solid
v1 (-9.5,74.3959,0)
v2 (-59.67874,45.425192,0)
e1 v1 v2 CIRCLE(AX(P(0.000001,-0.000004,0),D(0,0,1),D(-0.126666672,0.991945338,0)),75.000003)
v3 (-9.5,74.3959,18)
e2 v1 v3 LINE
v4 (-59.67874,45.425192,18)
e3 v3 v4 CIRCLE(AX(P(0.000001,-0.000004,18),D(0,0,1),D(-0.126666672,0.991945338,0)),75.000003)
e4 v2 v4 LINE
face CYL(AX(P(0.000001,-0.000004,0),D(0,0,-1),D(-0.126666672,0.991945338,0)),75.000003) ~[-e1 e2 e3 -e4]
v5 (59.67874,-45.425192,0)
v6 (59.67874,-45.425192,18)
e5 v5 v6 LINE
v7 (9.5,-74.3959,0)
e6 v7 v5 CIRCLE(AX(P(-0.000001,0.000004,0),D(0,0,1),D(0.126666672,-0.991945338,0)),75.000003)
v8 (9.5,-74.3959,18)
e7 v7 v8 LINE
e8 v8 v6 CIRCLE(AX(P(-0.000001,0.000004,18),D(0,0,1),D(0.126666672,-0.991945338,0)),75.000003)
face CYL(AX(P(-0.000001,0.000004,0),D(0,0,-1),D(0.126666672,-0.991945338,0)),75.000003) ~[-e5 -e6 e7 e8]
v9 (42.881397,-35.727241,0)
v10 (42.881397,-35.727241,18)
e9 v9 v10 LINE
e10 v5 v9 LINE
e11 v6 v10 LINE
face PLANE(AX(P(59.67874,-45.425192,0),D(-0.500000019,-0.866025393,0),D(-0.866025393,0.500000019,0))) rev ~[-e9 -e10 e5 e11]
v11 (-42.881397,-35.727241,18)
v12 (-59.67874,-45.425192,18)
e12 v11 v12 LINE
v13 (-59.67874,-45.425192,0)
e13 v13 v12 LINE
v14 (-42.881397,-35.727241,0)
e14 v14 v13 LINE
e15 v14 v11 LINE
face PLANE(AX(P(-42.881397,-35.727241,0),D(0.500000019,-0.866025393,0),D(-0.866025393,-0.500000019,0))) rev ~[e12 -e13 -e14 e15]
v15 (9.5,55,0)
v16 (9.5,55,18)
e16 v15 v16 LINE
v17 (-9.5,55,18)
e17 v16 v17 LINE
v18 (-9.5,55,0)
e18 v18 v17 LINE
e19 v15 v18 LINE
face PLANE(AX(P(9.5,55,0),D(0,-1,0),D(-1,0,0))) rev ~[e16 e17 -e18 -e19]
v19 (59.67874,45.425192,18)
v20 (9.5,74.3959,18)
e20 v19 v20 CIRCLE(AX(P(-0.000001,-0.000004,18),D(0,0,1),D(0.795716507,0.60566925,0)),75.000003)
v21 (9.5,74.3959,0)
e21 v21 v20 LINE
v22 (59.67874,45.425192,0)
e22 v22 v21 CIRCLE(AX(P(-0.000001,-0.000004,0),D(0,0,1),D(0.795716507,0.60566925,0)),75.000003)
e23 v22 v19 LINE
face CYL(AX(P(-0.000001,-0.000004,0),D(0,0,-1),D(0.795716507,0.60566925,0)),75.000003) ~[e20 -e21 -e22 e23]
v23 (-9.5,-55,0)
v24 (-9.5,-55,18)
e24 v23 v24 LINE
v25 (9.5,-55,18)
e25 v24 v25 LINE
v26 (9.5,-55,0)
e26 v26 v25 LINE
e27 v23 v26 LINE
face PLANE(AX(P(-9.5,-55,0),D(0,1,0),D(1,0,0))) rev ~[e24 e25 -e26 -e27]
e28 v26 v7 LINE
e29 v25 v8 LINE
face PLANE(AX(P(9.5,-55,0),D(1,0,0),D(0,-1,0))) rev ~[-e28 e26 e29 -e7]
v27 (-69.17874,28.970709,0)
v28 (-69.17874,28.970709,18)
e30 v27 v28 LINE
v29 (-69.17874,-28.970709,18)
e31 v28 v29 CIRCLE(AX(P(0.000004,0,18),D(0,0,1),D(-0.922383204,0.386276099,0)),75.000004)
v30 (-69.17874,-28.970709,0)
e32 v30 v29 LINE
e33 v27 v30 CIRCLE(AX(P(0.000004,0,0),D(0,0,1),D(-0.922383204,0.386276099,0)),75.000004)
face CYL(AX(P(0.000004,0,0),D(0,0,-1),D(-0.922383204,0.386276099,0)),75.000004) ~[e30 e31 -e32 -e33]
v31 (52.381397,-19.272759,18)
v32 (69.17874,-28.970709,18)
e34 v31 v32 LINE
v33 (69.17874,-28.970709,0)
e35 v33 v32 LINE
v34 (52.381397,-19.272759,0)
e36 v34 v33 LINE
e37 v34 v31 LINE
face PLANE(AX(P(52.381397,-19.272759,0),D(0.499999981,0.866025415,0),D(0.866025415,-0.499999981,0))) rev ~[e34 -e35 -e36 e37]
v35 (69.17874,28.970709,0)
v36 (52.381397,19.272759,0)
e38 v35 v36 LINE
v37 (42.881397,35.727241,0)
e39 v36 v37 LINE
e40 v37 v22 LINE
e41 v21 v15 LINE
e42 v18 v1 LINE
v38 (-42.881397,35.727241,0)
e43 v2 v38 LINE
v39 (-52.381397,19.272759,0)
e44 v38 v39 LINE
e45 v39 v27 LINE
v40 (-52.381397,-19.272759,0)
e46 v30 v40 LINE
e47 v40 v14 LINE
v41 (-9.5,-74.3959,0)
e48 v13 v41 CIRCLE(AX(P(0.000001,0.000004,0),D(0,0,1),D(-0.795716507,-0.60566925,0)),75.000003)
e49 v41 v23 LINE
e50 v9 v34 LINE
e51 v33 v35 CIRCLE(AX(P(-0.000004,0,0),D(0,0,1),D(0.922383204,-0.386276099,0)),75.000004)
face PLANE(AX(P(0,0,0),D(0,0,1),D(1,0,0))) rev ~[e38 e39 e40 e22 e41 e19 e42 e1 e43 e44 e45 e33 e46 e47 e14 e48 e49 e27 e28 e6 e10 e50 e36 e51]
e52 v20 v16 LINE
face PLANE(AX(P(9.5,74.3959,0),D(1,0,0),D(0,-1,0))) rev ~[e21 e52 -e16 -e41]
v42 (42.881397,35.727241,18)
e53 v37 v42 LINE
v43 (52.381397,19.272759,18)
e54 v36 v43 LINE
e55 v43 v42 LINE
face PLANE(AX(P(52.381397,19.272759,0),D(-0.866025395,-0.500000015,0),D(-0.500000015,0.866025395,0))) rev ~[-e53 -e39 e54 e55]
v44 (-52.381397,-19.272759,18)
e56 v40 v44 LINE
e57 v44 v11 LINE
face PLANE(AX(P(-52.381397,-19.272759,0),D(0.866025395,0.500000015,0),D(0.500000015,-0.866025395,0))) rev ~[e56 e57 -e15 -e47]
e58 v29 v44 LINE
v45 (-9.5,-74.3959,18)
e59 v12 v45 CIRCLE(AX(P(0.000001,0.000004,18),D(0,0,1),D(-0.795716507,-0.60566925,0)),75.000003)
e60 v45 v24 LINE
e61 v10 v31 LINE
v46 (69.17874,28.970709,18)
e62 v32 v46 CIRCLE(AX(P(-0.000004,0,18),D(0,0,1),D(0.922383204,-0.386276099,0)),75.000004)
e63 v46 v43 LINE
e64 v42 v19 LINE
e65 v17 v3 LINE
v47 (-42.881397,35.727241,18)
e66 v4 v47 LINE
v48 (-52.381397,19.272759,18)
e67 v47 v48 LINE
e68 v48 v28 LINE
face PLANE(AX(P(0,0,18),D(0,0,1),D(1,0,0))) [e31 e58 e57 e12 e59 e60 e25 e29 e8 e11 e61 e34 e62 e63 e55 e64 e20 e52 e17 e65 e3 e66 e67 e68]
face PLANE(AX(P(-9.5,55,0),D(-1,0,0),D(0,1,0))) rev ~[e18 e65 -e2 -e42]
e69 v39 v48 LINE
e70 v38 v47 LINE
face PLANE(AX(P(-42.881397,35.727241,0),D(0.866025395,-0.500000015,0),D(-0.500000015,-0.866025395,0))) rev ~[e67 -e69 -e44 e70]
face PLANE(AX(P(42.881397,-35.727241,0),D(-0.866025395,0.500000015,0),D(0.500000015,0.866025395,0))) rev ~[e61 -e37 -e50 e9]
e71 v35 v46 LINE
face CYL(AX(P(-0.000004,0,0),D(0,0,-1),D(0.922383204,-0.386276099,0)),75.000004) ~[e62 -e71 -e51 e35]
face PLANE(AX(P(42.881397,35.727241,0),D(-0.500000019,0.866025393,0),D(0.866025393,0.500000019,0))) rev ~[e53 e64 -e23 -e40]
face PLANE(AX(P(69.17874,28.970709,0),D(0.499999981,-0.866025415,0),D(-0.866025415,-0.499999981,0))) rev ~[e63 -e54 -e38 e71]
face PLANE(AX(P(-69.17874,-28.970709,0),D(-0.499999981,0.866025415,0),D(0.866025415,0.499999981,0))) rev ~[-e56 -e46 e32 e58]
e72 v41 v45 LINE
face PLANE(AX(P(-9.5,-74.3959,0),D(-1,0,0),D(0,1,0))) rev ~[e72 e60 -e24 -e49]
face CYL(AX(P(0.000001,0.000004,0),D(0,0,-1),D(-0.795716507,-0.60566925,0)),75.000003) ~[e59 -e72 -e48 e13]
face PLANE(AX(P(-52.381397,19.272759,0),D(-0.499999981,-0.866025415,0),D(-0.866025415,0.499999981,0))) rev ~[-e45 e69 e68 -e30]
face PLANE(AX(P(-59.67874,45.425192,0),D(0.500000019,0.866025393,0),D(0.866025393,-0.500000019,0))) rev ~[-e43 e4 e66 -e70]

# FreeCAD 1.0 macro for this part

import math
import FreeCAD as App
import Part
import Sketcher

V = App.Vector
Q = App.Units.Quantity

doc = App.newDocument("Part")
body = doc.addObject("PartDesign::Body", "Body")

# Sketch on XY plane
sketch1 = body.newObject("Sketcher::SketchObject", "Sketch")
sketch1.AttachmentSupport = (doc.getObject("XY_Plane"), [""])
sketch1.MapMode = "FlatFace"
sketch1.addGeometry(Part.LineSegment(V(-10, 55, 0), V(-10, 74, 0)), False)
sketch1.addGeometry(Part.ArcOfCircle(Part.Circle(V(0, 0, 0), V(0, 0, 1), 75), math.radians(97), math.radians(143)), False)
sketch1.addGeometry(Part.LineSegment(V(-60, 45, 0), V(-43, 36, 0)), False)
sketch1.addGeometry(Part.LineSegment(V(-43, 36, 0), V(-52, 19, 0)), False)
sketch1.addGeometry(Part.LineSegment(V(-52, 19, 0), V(-69, 29, 0)), False)
sketch1.addGeometry(Part.ArcOfCircle(Part.Circle(V(0, 0, 0), V(0, 0, 1), 75), math.radians(157), math.radians(203)), False)
sketch1.addGeometry(Part.LineSegment(V(-69, -29, 0), V(-52, -19, 0)), False)
sketch1.addGeometry(Part.LineSegment(V(-52, -19, 0), V(-43, -36, 0)), False)
sketch1.addGeometry(Part.LineSegment(V(-43, -36, 0), V(-60, -45, 0)), False)
sketch1.addGeometry(Part.ArcOfCircle(Part.Circle(V(0, 0, 0), V(0, 0, 1), 75), math.radians(-143), math.radians(-97)), False)
sketch1.addGeometry(Part.LineSegment(V(-10, -74, 0), V(-10, -55, 0)), False)
sketch1.addGeometry(Part.LineSegment(V(-10, -55, 0), V(10, -55, 0)), False)
sketch1.addGeometry(Part.LineSegment(V(10, -55, 0), V(10, -74, 0)), False)
sketch1.addGeometry(Part.ArcOfCircle(Part.Circle(V(0, 0, 0), V(0, 0, 1), 75), math.radians(-83), math.radians(-37)), False)
sketch1.addGeometry(Part.LineSegment(V(60, -45, 0), V(43, -36, 0)), False)
sketch1.addGeometry(Part.LineSegment(V(43, -36, 0), V(52, -19, 0)), False)
sketch1.addGeometry(Part.LineSegment(V(52, -19, 0), V(69, -29, 0)), False)
sketch1.addGeometry(Part.ArcOfCircle(Part.Circle(V(0, 0, 0), V(0, 0, 1), 75), math.radians(-23), math.radians(23)), False)
sketch1.addGeometry(Part.LineSegment(V(69, 29, 0), V(52, 19, 0)), False)
sketch1.addGeometry(Part.LineSegment(V(52, 19, 0), V(43, 36, 0)), False)
sketch1.addGeometry(Part.LineSegment(V(43, 36, 0), V(60, 45, 0)), False)
sketch1.addGeometry(Part.ArcOfCircle(Part.Circle(V(0, 0, 0), V(0, 0, 1), 75), math.radians(37), math.radians(83)), False)
sketch1.addGeometry(Part.LineSegment(V(10, 74, 0), V(10, 55, 0)), False)
sketch1.addGeometry(Part.LineSegment(V(10, 55, 0), V(-10, 55, 0)), False)
sketch1.addConstraint(Sketcher.Constraint("Coincident", 0, 2, 1, 1))
sketch1.addConstraint(Sketcher.Constraint("Coincident", 1, 2, 2, 1))
sketch1.addConstraint(Sketcher.Constraint("Coincident", 2, 2, 3, 1))
sketch1.addConstraint(Sketcher.Constraint("Coincident", 3, 2, 4, 1))
sketch1.addConstraint(Sketcher.Constraint("Coincident", 4, 2, 5, 1))
sketch1.addConstraint(Sketcher.Constraint("Coincident", 5, 2, 6, 1))
sketch1.addConstraint(Sketcher.Constraint("Coincident", 6, 2, 7, 1))
sketch1.addConstraint(Sketcher.Constraint("Coincident", 7, 2, 8, 1))
sketch1.addConstraint(Sketcher.Constraint("Coincident", 8, 2, 9, 1))
sketch1.addConstraint(Sketcher.Constraint("Coincident", 9, 2, 10, 1))
sketch1.addConstraint(Sketcher.Constraint("Coincident", 10, 2, 11, 1))
sketch1.addConstraint(Sketcher.Constraint("Coincident", 11, 2, 12, 1))
sketch1.addConstraint(Sketcher.Constraint("Coincident", 12, 2, 13, 1))
sketch1.addConstraint(Sketcher.Constraint("Coincident", 13, 2, 14, 1))
sketch1.addConstraint(Sketcher.Constraint("Coincident", 14, 2, 15, 1))
sketch1.addConstraint(Sketcher.Constraint("Coincident", 15, 2, 16, 1))
sketch1.addConstraint(Sketcher.Constraint("Coincident", 16, 2, 17, 1))
sketch1.addConstraint(Sketcher.Constraint("Coincident", 17, 2, 18, 1))
sketch1.addConstraint(Sketcher.Constraint("Coincident", 18, 2, 19, 1))
sketch1.addConstraint(Sketcher.Constraint("Coincident", 19, 2, 20, 1))
sketch1.addConstraint(Sketcher.Constraint("Coincident", 20, 2, 21, 1))
sketch1.addConstraint(Sketcher.Constraint("Coincident", 21, 2, 22, 1))
sketch1.addConstraint(Sketcher.Constraint("Coincident", 22, 2, 23, 1))
sketch1.addConstraint(Sketcher.Constraint("Coincident", 23, 2, 0, 1))
sketch1.addConstraint(Sketcher.Constraint("Vertical", 0))
sketch1.addConstraint(Sketcher.Constraint("Vertical", 10))
sketch1.addConstraint(Sketcher.Constraint("Horizontal", 11))
sketch1.addConstraint(Sketcher.Constraint("Vertical", 12))
sketch1.addConstraint(Sketcher.Constraint("Vertical", 22))
sketch1.addConstraint(Sketcher.Constraint("Horizontal", 23))
sketch1.addConstraint(Sketcher.Constraint("Coincident", 1, 3, -1, 1))
sketch1.addConstraint(Sketcher.Constraint("Coincident", 5, 3, -1, 1))
sketch1.addConstraint(Sketcher.Constraint("Coincident", 9, 3, -1, 1))
sketch1.addConstraint(Sketcher.Constraint("Coincident", 13, 3, -1, 1))
sketch1.addConstraint(Sketcher.Constraint("Coincident", 17, 3, -1, 1))
sketch1.addConstraint(Sketcher.Constraint("Coincident", 21, 3, -1, 1))
sketch1.addConstraint(Sketcher.Constraint("Equal", 1, 5))
sketch1.addConstraint(Sketcher.Constraint("Equal", 5, 9))
sketch1.addConstraint(Sketcher.Constraint("Equal", 9, 13))
sketch1.addConstraint(Sketcher.Constraint("Equal", 13, 17))
sketch1.addConstraint(Sketcher.Constraint("Equal", 17, 21))
sketch1.addConstraint(Sketcher.Constraint("Symmetric", 2, 2, 14, 2, -1, 1))
sketch1.addConstraint(Sketcher.Constraint("Symmetric", 3, 2, 15, 2, -1, 1))
sketch1.addConstraint(Sketcher.Constraint("Symmetric", 6, 2, 18, 2, -1, 1))
sketch1.addConstraint(Sketcher.Constraint("Symmetric", 7, 2, 19, 2, -1, 1))
sketch1.addConstraint(Sketcher.Constraint("Symmetric", 10, 2, 22, 2, -1, 1))
sketch1.addConstraint(Sketcher.Constraint("Symmetric", 7, 2, 14, 2, -2))
sketch1.addConstraint(Sketcher.Constraint("Symmetric", 6, 2, 15, 2, -2))
sketch1.addConstraint(Sketcher.Constraint("Perpendicular", 2, 3))
sketch1.addConstraint(Sketcher.Constraint("Perpendicular", 3, 4))
sketch1.addConstraint(Sketcher.Constraint("Perpendicular", 6, 7))
sketch1.addConstraint(Sketcher.Constraint("Perpendicular", 7, 8))
sketch1.addConstraint(Sketcher.Constraint("Parallel", 4, 14))
sketch1.addConstraint(Sketcher.Constraint("Perpendicular", 15, 16))
sketch1.addConstraint(Sketcher.Constraint("Parallel", 8, 18))
sketch1.addConstraint(Sketcher.Constraint("Perpendicular", 19, 20))
sketch1.addConstraint(Sketcher.Constraint("Horizontal", 9, 2, 12, 2))
sketch1.addConstraint(Sketcher.Constraint("Horizontal", 0, 2, 21, 2))
sketch1.addConstraint(Sketcher.Constraint("Equal", 2, 4))
sketch1.addConstraint(Sketcher.Constraint("DistanceX", 11, 1, 11, 2, 19.0))
sketch1.addConstraint(Sketcher.Constraint("Angle", 2, Q("-30.000001 deg")))
sketch1.addConstraint(Sketcher.Constraint("Distance", 3, 18.999999))
sketch1.addConstraint(Sketcher.Constraint("DistanceY", 10, 2, -1, 1, 55.0))
sketch1.addConstraint(Sketcher.Constraint("DistanceY", 0, 1, 0, 2, 19.3959))
sketch1.addConstraint(Sketcher.Constraint("Distance", 2, 19.395901))
pad1 = body.newObject("PartDesign::Pad", "Pad")
pad1.Profile = sketch1
pad1.Length = 18

doc.recompute()
